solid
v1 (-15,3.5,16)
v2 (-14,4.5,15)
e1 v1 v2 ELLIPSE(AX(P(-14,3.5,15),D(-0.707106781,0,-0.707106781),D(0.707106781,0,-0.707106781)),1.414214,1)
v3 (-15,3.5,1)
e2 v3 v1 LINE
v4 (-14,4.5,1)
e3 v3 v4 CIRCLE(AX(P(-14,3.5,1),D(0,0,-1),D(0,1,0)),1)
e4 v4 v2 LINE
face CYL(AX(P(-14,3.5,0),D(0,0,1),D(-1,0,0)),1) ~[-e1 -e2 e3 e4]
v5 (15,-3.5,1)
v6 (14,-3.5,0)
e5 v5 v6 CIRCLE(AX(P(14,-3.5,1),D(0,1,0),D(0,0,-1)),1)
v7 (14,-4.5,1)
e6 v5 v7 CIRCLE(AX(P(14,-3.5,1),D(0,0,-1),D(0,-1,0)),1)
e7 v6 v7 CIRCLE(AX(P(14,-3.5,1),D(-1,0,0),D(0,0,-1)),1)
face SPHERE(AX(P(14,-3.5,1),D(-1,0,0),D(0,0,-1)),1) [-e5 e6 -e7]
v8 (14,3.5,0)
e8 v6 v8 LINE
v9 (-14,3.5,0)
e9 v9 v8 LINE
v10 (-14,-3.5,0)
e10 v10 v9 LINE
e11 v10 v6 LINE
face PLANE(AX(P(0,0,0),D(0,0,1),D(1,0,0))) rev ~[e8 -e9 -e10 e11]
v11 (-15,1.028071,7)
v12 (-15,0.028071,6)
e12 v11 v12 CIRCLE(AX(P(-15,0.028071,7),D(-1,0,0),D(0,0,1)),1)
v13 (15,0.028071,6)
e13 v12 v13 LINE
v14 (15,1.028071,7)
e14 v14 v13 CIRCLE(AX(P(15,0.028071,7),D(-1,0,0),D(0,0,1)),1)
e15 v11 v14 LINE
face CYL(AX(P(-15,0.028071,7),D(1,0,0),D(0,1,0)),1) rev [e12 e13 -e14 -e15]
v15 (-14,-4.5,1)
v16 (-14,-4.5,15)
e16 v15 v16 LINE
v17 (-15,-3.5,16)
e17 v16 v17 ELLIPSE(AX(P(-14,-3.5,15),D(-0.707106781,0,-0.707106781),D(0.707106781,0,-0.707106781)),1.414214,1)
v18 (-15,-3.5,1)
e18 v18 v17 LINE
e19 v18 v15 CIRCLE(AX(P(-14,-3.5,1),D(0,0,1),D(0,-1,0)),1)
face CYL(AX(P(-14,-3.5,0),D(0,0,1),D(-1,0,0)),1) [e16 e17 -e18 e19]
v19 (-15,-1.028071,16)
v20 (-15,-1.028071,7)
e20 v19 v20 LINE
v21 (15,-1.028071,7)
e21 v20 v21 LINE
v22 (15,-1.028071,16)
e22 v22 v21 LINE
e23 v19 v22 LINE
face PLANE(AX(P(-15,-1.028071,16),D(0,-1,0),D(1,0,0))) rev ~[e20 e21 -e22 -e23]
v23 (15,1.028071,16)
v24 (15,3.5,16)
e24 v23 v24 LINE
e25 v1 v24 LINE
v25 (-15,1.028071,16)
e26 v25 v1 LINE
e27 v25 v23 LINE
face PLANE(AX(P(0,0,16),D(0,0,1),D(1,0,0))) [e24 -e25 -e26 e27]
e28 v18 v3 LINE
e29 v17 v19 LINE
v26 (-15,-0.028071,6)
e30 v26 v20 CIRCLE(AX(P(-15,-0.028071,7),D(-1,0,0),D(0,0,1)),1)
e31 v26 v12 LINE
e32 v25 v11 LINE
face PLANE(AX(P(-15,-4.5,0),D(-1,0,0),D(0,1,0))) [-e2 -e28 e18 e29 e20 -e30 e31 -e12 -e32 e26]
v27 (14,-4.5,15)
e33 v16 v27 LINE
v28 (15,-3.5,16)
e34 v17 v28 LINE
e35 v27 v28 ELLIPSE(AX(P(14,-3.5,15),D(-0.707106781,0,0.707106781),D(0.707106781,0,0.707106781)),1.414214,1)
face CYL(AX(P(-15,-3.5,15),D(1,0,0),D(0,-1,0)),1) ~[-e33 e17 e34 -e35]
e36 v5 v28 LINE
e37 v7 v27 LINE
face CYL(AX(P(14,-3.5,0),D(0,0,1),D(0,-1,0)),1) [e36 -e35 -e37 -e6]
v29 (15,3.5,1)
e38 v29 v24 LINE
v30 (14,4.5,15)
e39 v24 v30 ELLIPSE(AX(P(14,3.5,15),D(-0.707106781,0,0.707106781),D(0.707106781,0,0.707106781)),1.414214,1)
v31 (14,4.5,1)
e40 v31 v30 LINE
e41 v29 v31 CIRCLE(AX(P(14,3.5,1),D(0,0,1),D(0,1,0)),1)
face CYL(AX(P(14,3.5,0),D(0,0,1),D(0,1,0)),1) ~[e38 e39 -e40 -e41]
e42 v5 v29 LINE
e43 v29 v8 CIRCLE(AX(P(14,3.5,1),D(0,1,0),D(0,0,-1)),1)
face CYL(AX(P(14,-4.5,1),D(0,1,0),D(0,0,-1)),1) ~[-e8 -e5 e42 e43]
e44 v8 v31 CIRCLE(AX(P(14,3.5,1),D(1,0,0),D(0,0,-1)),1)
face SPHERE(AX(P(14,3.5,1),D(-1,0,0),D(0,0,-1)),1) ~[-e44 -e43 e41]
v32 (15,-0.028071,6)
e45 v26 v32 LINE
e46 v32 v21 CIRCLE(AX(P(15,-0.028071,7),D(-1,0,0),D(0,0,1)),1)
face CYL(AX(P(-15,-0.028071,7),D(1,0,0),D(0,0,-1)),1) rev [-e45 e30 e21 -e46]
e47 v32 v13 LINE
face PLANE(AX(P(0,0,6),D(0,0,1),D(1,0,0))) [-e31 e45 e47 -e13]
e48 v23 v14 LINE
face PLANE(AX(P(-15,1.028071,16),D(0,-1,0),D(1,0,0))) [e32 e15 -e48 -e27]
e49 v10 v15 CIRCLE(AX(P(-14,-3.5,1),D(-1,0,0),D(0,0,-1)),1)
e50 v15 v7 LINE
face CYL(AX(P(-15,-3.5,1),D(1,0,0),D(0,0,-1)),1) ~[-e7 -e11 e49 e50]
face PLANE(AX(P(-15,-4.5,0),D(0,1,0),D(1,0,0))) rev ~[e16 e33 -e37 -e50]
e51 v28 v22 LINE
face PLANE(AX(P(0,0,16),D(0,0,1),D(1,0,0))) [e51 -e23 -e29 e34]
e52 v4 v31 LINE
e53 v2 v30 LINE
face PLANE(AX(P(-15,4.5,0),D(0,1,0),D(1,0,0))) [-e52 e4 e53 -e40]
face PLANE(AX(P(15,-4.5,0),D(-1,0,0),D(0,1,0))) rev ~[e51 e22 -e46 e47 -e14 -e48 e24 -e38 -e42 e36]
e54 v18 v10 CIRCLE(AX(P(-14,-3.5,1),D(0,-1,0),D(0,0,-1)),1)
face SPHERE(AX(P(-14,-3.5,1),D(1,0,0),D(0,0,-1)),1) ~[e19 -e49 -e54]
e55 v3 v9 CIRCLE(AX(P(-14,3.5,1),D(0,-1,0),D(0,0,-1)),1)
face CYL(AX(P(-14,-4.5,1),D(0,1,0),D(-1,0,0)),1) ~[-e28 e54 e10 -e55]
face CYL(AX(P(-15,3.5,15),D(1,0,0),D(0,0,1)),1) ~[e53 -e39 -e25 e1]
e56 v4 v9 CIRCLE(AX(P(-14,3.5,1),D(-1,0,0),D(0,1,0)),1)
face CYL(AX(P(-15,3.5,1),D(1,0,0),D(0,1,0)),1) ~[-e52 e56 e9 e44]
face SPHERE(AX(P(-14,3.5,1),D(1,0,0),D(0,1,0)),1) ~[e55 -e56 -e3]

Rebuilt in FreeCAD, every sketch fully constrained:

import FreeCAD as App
import Part
import Sketcher
Q = App.Units.Quantity


def edges_at(feature, points):
    """Names of the edges that pass closest to the given points."""
    edges = feature.Shape.Edges
    near = lambda p: min(range(len(edges)), key=lambda i: edges[i].distToShape(Part.Vertex(*p))[0])
    return sorted({f"Edge{near(p) + 1}" for p in points})

doc = App.newDocument("Part")
body = doc.addObject("PartDesign::Body", "Body")

# Sketch on XY plane
sketch1 = doc.addObject("Sketcher::SketchObject", "Sketch")
body.addObject(sketch1)
sketch1.AttachmentSupport = (doc.XY_Plane, [""])
sketch1.MapMode = "FlatFace"
sketch1.addGeometry([
    Part.LineSegment(App.Vector(-15, 4, 0), App.Vector(-15, -4, 0)),
    Part.LineSegment(App.Vector(-15, -4, 0), App.Vector(15, -4, 0)),
    Part.LineSegment(App.Vector(15, -4, 0), App.Vector(15, 4, 0)),
    Part.LineSegment(App.Vector(15, 4, 0), App.Vector(-15, 4, 0)),
], False)
sketch1.addConstraint([
    Sketcher.Constraint("Coincident", 0, 2, 1, 1),
    Sketcher.Constraint("Coincident", 1, 2, 2, 1),
    Sketcher.Constraint("Coincident", 2, 2, 3, 1),
    Sketcher.Constraint("Coincident", 3, 2, 0, 1),
    Sketcher.Constraint("Vertical", 0),
    Sketcher.Constraint("Horizontal", 1),
    Sketcher.Constraint("Vertical", 2),
    Sketcher.Constraint("Horizontal", 3),
    Sketcher.Constraint("Symmetric", 0, 2, 2, 2, -1, 1),
    Sketcher.Constraint("DistanceX", 1, 1, 1, 2, Q("30 mm")),
    Sketcher.Constraint("DistanceY", 0, 2, 0, 1, Q("9 mm")),
])
pad1 = doc.addObject("PartDesign::Pad", "Pad")
body.addObject(pad1)
pad1.Profile = sketch1
pad1.Length = 16

# Sketch on XY plane
sketch2 = doc.addObject("Sketcher::SketchObject", "Sketch001")
body.addObject(sketch2)
sketch2.AttachmentSupport = (doc.XY_Plane, [""])
sketch2.MapMode = "FlatFace"
sketch2.AttachmentOffset = App.Placement(App.Vector(0, 0, 16), App.Rotation())
sketch2.addGeometry([
    Part.LineSegment(App.Vector(-15, 1, 0), App.Vector(-15, -1, 0)),
    Part.LineSegment(App.Vector(-15, -1, 0), App.Vector(15, -1, 0)),
    Part.LineSegment(App.Vector(15, -1, 0), App.Vector(15, 1, 0)),
    Part.LineSegment(App.Vector(15, 1, 0), App.Vector(-15, 1, 0)),
], False)
sketch2.addConstraint([
    Sketcher.Constraint("Coincident", 0, 2, 1, 1),
    Sketcher.Constraint("Coincident", 1, 2, 2, 1),
    Sketcher.Constraint("Coincident", 2, 2, 3, 1),
    Sketcher.Constraint("Coincident", 3, 2, 0, 1),
    Sketcher.Constraint("Vertical", 0),
    Sketcher.Constraint("Horizontal", 1),
    Sketcher.Constraint("Vertical", 2),
    Sketcher.Constraint("Horizontal", 3),
    Sketcher.Constraint("Symmetric", 0, 2, 2, 2, -1, 1),
    Sketcher.Constraint("DistanceX", 1, 1, 1, 2, Q("30 mm")),
    Sketcher.Constraint("DistanceY", 0, 2, 0, 1, Q("2.056142 mm")),
])
pocket1 = doc.addObject("PartDesign::Pocket", "Pocket")
body.addObject(pocket1)
pocket1.Profile = sketch2
pocket1.Length = 10
doc.recompute()

fillet = doc.addObject("PartDesign::Fillet", "Fillet")
body.addObject(fillet)
fillet.Base = (pocket1, edges_at(pocket1, [(0, -1.028, 6), (0, 1.028, 6)]))
fillet.Radius = 1
doc.recompute()

fillet2 = doc.addObject("PartDesign::Fillet", "Fillet001")
body.addObject(fillet2)
fillet2.Base = (fillet, edges_at(fillet, [
    (0, 4.5, 16),
    (0, -4.5, 16),
    (0, 4.5, 0),
    (0, -4.5, 0),
    (15, 0, 0),
    (15, -4.5, 8),
    (15, 4.5, 8),
    (-15, 4.5, 8),
    (-15, 0, 0),
    (-15, -4.5, 8),
]))
fillet2.Radius = 1

doc.recompute()
